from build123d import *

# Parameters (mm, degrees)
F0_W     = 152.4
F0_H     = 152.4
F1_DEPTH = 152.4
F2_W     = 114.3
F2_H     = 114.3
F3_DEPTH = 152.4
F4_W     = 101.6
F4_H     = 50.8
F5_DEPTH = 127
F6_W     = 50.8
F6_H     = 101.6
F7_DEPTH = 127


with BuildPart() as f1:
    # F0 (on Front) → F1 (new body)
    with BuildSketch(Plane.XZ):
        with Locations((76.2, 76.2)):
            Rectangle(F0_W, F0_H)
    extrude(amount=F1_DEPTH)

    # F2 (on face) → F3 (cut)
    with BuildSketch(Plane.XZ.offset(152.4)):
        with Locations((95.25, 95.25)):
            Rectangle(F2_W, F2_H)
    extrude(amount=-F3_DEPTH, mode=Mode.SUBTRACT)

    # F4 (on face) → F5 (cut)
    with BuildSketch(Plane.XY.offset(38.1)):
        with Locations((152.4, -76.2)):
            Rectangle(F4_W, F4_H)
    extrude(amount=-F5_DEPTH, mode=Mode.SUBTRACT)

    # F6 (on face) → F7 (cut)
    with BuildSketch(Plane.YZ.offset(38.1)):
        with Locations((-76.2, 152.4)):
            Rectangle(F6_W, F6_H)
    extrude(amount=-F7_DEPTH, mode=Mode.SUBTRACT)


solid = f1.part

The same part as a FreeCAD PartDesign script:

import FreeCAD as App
import Part
import Sketcher

V = App.Vector
Q = App.Units.Quantity


def add_polygon(sketch, points):
    """Adds a closed chain of lines whose ends are joined by coincident constraints."""
    first, n = sketch.GeometryCount, len(points)
    for a, b in zip(points, points[1:] + points[:1]):
        sketch.addGeometry(Part.LineSegment(App.Vector(*a, 0), App.Vector(*b, 0)), False)
    for i in range(n):
        sketch.addConstraint(Sketcher.Constraint("Coincident", first + i, 2, first + (i + 1) % n, 1))

doc = App.newDocument("Part")
params = doc.addObject("Spreadsheet::Sheet", "Params")
for row, (alias, value) in enumerate([
    ("sketch1_width", "6 in"),
    ("pad1_length", "6 in"),
    ("sketch2_width", "4.5 in"),
    ("pocket1_length", "6 in"),
    ("sketch3_width", "4 in"),
    ("sketch3_height", "2 in"),
    ("pocket2_length", "5 in"),
    ("sketch4_width", "2 in"),
    ("sketch4_height", "4 in"),
    ("pocket3_length", "5 in"),
], start=1):
    params.set(f"A{row}", alias)
    params.set(f"B{row}", "=" + value)
    params.setAlias(f"B{row}", alias)

body = doc.addObject("PartDesign::Body", "Body")

# Sketch on XZ plane
sketch1 = body.newObject("Sketcher::SketchObject", "Sketch")
sketch1.AttachmentSupport = (doc.getObject("XZ_Plane"), [""])
sketch1.MapMode = "FlatFace"
add_polygon(sketch1, [(0, 152), (0, 0), (152, 0), (152, 152)])  # lines 0-3
sketch1.addConstraint(Sketcher.Constraint("Vertical", 0))
sketch1.addConstraint(Sketcher.Constraint("Horizontal", 1))
sketch1.addConstraint(Sketcher.Constraint("Vertical", 2))
sketch1.addConstraint(Sketcher.Constraint("Horizontal", 3))
sketch1.addConstraint(Sketcher.Constraint("Coincident", 0, 2, -1, 1))
sketch1.addConstraint(Sketcher.Constraint("Equal", 3, 0))
sketch1.addConstraint(Sketcher.Constraint("DistanceX", 1, 1, 1, 2, Q("6 in")))
sketch1.setExpression("Constraints[10]", "Params.sketch1_width")
pad1 = body.newObject("PartDesign::Pad", "Pad")
pad1.Profile = sketch1
pad1.setExpression("Length", "Params.pad1_length")

# Sketch on XZ plane
sketch2 = body.newObject("Sketcher::SketchObject", "Sketch001")
sketch2.AttachmentSupport = (doc.getObject("XZ_Plane"), [""])
sketch2.MapMode = "FlatFace"
sketch2.AttachmentOffset = App.Placement(V(0, 0, 6 * 25.4), App.Rotation())
add_polygon(sketch2, [(38, 152), (38, 38), (152, 38), (152, 152)])  # lines 0-3
sketch2.addConstraint(Sketcher.Constraint("Vertical", 0))
sketch2.addConstraint(Sketcher.Constraint("Horizontal", 1))
sketch2.addConstraint(Sketcher.Constraint("Vertical", 2))
sketch2.addConstraint(Sketcher.Constraint("Horizontal", 3))
sketch2.addConstraint(Sketcher.Constraint("Equal", 3, 0))
sketch2.addConstraint(Sketcher.Constraint("DistanceX", 1, 1, 1, 2, Q("4.5 in")))
sketch2.addConstraint(Sketcher.Constraint("DistanceX", -1, 1, 1, 2, Q("6 in")))
sketch2.addConstraint(Sketcher.Constraint("DistanceY", -1, 1, 2, 2, Q("6 in")))
sketch2.setExpression("Constraints[9]", "Params.sketch2_width")
pocket1 = body.newObject("PartDesign::Pocket", "Pocket")
pocket1.Profile = sketch2
pocket1.setExpression("Length", "Params.pocket1_length")

# Sketch on XY plane
sketch3 = body.newObject("Sketcher::SketchObject", "Sketch002")
sketch3.AttachmentSupport = (doc.getObject("XY_Plane"), [""])
sketch3.MapMode = "FlatFace"
sketch3.AttachmentOffset = App.Placement(V(0, 0, 1.5 * 25.4), App.Rotation())
add_polygon(sketch3, [(102, -51), (102, -102), (203, -102), (203, -51)])  # lines 0-3
sketch3.addConstraint(Sketcher.Constraint("Vertical", 0))
sketch3.addConstraint(Sketcher.Constraint("Horizontal", 1))
sketch3.addConstraint(Sketcher.Constraint("Vertical", 2))
sketch3.addConstraint(Sketcher.Constraint("Horizontal", 3))
sketch3.addConstraint(Sketcher.Constraint("DistanceX", 1, 1, 1, 2, Q("4 in")))
sketch3.addConstraint(Sketcher.Constraint("DistanceY", 0, 2, 0, 1, Q("2 in")))
sketch3.addConstraint(Sketcher.Constraint("DistanceX", -1, 1, 0, 2, Q("4 in")))
sketch3.addConstraint(Sketcher.Constraint("DistanceY", 0, 2, -1, 1, Q("4 in")))
sketch3.setExpression("Constraints[8]", "Params.sketch3_width")
sketch3.setExpression("Constraints[9]", "Params.sketch3_height")
pocket2 = body.newObject("PartDesign::Pocket", "Pocket001")
pocket2.Profile = sketch3
pocket2.setExpression("Length", "Params.pocket2_length")

# Sketch on YZ plane
sketch4 = body.newObject("Sketcher::SketchObject", "Sketch003")
sketch4.AttachmentSupport = (doc.getObject("YZ_Plane"), [""])
sketch4.MapMode = "FlatFace"
sketch4.AttachmentOffset = App.Placement(V(0, 0, 1.5 * 25.4), App.Rotation())
add_polygon(sketch4, [(-102, 203), (-102, 102), (-51, 102), (-51, 203)])  # lines 0-3
sketch4.addConstraint(Sketcher.Constraint("Vertical", 0))
sketch4.addConstraint(Sketcher.Constraint("Horizontal", 1))
sketch4.addConstraint(Sketcher.Constraint("Vertical", 2))
sketch4.addConstraint(Sketcher.Constraint("Horizontal", 3))
sketch4.addConstraint(Sketcher.Constraint("DistanceX", 1, 1, 1, 2, Q("2 in")))
sketch4.addConstraint(Sketcher.Constraint("DistanceY", 0, 2, 0, 1, Q("4 in")))
sketch4.addConstraint(Sketcher.Constraint("DistanceX", 0, 2, -1, 1, Q("4 in")))
sketch4.addConstraint(Sketcher.Constraint("DistanceY", -1, 1, 0, 2, Q("4 in")))
sketch4.setExpression("Constraints[8]", "Params.sketch4_width")
sketch4.setExpression("Constraints[9]", "Params.sketch4_height")
pocket3 = body.newObject("PartDesign::Pocket", "Pocket002")
pocket3.Profile = sketch4
pocket3.setExpression("Length", "Params.pocket3_length")

doc.recompute()
